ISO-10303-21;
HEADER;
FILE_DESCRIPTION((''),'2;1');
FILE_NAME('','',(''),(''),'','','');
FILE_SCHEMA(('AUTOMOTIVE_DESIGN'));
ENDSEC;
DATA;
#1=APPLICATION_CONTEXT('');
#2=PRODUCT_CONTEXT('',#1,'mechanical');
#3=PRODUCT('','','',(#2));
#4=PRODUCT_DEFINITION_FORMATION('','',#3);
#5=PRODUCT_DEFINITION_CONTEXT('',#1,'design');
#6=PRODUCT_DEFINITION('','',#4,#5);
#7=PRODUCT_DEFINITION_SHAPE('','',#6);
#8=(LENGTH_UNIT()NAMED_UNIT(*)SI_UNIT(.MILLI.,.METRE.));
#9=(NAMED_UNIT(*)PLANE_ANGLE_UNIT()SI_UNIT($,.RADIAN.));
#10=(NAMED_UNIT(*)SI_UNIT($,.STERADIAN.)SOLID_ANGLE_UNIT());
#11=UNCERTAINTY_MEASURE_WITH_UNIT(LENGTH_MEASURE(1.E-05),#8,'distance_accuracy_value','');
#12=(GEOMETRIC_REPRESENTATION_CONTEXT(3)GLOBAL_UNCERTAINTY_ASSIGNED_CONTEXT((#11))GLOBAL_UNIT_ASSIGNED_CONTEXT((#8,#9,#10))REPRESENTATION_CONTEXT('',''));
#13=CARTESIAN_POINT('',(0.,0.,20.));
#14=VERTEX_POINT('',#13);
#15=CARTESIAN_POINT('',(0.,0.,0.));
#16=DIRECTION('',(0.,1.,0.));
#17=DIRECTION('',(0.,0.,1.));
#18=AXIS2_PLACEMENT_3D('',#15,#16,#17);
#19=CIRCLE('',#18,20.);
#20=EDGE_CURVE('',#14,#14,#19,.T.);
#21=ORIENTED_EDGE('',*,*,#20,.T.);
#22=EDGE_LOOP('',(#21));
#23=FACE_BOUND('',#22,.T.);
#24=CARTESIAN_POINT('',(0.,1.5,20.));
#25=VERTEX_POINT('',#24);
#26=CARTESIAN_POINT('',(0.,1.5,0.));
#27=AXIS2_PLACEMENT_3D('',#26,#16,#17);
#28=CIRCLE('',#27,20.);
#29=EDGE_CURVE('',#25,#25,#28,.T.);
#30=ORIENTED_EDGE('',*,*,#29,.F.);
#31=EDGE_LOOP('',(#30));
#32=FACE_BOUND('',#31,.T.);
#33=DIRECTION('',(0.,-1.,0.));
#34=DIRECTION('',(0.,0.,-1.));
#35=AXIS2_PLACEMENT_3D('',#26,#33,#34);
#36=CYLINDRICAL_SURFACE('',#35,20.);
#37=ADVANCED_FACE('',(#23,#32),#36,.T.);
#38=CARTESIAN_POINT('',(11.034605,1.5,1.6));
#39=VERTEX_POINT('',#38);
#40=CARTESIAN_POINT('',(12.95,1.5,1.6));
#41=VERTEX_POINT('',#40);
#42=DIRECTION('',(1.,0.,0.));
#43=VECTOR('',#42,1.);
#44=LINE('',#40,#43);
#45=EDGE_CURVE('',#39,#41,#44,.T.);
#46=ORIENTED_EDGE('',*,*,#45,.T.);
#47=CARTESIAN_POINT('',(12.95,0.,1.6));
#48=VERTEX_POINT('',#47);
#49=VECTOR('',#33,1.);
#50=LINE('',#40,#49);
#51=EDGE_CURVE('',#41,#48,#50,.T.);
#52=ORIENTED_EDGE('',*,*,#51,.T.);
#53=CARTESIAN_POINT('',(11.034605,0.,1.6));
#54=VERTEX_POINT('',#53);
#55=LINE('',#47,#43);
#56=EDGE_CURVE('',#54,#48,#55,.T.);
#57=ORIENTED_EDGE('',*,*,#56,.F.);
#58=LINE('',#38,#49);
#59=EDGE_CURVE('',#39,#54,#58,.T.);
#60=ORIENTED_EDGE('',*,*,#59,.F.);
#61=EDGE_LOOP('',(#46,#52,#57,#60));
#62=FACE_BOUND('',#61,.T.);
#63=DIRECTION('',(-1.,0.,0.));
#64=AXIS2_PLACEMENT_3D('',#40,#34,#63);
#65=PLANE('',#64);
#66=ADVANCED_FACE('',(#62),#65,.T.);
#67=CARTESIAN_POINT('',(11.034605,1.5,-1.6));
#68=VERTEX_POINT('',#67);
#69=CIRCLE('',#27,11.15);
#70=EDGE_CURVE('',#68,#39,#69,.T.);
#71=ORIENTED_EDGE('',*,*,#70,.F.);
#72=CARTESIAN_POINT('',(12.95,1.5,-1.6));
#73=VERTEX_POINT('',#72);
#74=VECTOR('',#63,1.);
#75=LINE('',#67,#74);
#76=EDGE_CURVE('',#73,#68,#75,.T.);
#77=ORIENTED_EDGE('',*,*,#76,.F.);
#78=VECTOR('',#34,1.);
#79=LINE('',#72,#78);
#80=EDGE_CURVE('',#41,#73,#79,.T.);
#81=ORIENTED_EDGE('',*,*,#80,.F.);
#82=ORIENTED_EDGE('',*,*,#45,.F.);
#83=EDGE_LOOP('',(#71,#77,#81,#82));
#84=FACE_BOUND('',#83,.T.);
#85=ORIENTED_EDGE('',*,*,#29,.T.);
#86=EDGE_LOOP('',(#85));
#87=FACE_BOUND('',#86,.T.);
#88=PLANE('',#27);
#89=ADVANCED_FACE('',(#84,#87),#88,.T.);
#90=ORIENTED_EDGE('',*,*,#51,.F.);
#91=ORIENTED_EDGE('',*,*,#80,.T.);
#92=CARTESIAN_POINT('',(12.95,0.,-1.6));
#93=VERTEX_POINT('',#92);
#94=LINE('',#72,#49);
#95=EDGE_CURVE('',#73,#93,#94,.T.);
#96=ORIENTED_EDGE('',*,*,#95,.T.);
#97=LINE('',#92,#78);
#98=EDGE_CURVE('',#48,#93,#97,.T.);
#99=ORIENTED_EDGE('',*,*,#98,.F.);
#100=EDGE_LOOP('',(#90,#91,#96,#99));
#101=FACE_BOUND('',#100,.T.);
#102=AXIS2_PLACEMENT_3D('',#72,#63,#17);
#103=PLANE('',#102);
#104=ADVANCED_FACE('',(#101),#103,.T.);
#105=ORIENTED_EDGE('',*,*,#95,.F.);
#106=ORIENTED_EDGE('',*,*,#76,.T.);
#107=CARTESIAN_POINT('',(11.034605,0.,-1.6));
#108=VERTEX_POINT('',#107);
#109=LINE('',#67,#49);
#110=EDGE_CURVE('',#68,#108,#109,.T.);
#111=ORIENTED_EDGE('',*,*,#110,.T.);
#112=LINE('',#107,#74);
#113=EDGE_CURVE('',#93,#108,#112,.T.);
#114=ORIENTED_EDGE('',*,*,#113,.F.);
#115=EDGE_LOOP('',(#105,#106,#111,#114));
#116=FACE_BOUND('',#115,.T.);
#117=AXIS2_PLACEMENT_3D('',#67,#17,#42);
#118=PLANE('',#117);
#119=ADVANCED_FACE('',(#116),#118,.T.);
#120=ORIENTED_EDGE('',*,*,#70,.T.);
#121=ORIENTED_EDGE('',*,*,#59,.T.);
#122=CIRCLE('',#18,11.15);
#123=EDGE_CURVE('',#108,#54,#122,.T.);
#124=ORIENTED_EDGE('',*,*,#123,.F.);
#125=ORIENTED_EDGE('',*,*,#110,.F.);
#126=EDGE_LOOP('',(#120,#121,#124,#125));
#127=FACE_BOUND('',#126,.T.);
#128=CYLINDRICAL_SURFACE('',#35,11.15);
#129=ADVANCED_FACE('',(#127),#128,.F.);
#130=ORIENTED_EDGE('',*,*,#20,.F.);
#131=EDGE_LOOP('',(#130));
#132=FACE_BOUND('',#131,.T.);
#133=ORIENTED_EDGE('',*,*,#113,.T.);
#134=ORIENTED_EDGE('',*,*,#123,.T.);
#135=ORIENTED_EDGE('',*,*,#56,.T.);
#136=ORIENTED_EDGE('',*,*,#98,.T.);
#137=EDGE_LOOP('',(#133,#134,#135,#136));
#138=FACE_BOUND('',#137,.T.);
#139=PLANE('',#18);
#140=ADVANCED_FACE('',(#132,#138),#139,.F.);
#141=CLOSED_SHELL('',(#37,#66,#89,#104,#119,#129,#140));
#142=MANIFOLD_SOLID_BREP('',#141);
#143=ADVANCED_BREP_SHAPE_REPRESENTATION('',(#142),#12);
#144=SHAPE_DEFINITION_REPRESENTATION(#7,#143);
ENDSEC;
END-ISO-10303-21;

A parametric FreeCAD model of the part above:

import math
import FreeCAD as App
import Part
import Sketcher

doc = App.newDocument("Part")
body = doc.addObject("PartDesign::Body", "Body")

# Sketch on XZ plane
sketch1 = doc.addObject("Sketcher::SketchObject", "Sketch")
body.addObject(sketch1)
sketch1.AttachmentSupport = (doc.XZ_Plane, [""])
sketch1.MapMode = "FlatFace"
sketch1.addGeometry([
    Part.Circle(App.Vector(0, 0, 0), App.Vector(0, 0, 1), 20),  # 0
    Part.ArcOfCircle(Part.Circle(App.Vector(0, 0, 0), App.Vector(0, 0, 1), 11.15), math.radians(8.250297), math.radians(351.749703)),  # 1
    Part.LineSegment(App.Vector(11.034605, -1.6, 0), App.Vector(12.95, -1.6, 0)),  # 2
    Part.LineSegment(App.Vector(12.95, -1.6, 0), App.Vector(12.95, 1.6, 0)),  # 3
    Part.LineSegment(App.Vector(12.95, 1.6, 0), App.Vector(11.034605, 1.6, 0)),  # 4
], False)
sketch1.addConstraint([
    Sketcher.Constraint("Coincident", 1, 2, 2, 1),
    Sketcher.Constraint("Coincident", 2, 2, 3, 1),
    Sketcher.Constraint("Coincident", 3, 2, 4, 1),
    Sketcher.Constraint("Coincident", 4, 2, 1, 1),
    Sketcher.Constraint("Horizontal", 2),
    Sketcher.Constraint("Vertical", 3),
    Sketcher.Constraint("Horizontal", 4),
    Sketcher.Constraint("Coincident", 0, 3, -1, 1),
    Sketcher.Constraint("Coincident", 1, 3, -1, 1),
    Sketcher.Constraint("Vertical", 1, 2, 4, 2),
    Sketcher.Constraint("Diameter", 0, 40.0),
    Sketcher.Constraint("Radius", 1, 11.15),
    Sketcher.Constraint("DistanceY", 3, 1, 3, 2, 3.2),
    Sketcher.Constraint("DistanceX", -1, 1, 2, 2, 12.95),
])
pad1 = doc.addObject("PartDesign::Pad", "Pad")
body.addObject(pad1)
pad1.Profile = sketch1
pad1.Length = 1.5
pad1.Reversed = True

doc.recompute()
